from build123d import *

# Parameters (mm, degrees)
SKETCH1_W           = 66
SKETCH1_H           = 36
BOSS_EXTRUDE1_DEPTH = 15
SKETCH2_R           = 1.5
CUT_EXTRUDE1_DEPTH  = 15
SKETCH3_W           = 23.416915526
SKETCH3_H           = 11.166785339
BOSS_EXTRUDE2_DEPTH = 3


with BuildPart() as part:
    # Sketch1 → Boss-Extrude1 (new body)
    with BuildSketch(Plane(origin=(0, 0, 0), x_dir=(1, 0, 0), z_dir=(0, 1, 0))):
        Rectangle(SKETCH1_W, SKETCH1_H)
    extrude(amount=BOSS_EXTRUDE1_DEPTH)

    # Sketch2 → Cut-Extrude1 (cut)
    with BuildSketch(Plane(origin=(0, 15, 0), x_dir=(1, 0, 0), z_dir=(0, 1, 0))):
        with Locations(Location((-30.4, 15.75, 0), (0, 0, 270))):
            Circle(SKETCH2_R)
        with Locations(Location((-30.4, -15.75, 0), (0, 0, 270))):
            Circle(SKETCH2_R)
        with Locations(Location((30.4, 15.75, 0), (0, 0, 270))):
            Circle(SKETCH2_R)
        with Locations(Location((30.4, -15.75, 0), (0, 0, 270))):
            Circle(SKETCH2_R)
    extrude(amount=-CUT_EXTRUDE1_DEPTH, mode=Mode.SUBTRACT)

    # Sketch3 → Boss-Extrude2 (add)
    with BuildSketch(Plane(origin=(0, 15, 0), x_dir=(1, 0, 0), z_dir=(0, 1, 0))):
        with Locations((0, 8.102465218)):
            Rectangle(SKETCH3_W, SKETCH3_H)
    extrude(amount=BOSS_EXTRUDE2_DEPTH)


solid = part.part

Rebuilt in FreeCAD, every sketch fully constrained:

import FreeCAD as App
import Part
import Sketcher
from FreeCAD import Vector

doc = App.newDocument("Part")
params = doc.addObject("Spreadsheet::Sheet", "Params")
for row, (alias, value) in enumerate([
    ("sketch1_width", "66 mm"),
    ("sketch1_height", "36 mm"),
    ("pad1_length", "15 mm"),
    ("sketch2_diameter", "3 mm"),
    ("pocket1_length", "15 mm"),
    ("pad2_length", "3 mm"),
], start=1):
    params.set(f"A{row}", alias)
    params.set(f"B{row}", "=" + value)
    params.setAlias(f"B{row}", alias)

body = doc.addObject("PartDesign::Body", "Body")

# Sketch on XZ plane
sketch1 = doc.addObject("Sketcher::SketchObject", "Sketch")
body.addObject(sketch1)
sketch1.AttachmentSupport = (doc.XZ_Plane, [""])
sketch1.MapMode = "FlatFace"
sketch1.addGeometry([
    Part.LineSegment(Vector(-33, -18, 0), Vector(-33, 18, 0)),
    Part.LineSegment(Vector(-33, 18, 0), Vector(33, 18, 0)),
    Part.LineSegment(Vector(33, 18, 0), Vector(33, -18, 0)),
    Part.LineSegment(Vector(33, -18, 0), Vector(-33, -18, 0)),
], False)
sketch1.addConstraint([
    Sketcher.Constraint("Coincident", 0, 2, 1, 1),
    Sketcher.Constraint("Coincident", 1, 2, 2, 1),
    Sketcher.Constraint("Coincident", 2, 2, 3, 1),
    Sketcher.Constraint("Coincident", 3, 2, 0, 1),
    Sketcher.Constraint("Vertical", 0),
    Sketcher.Constraint("Horizontal", 1),
    Sketcher.Constraint("Vertical", 2),
    Sketcher.Constraint("Horizontal", 3),
    Sketcher.Constraint("Symmetric", 0, 2, 2, 2, -1, 1),
    Sketcher.Constraint("DistanceX", 1, 1, 1, 2, 66.0),
    Sketcher.Constraint("DistanceY", 0, 1, 0, 2, 36.0),
])
sketch1.setExpression("Constraints[9]", "Params.sketch1_width")
sketch1.setExpression("Constraints[10]", "Params.sketch1_height")
pad1 = doc.addObject("PartDesign::Pad", "Pad")
body.addObject(pad1)
pad1.Profile = sketch1
pad1.setExpression("Length", "Params.pad1_length")
pad1.Reversed = True

# Sketch on XZ plane
sketch2 = doc.addObject("Sketcher::SketchObject", "Sketch001")
body.addObject(sketch2)
sketch2.AttachmentSupport = (doc.XZ_Plane, [""])
sketch2.MapMode = "FlatFace"
sketch2.AttachmentOffset = App.Placement(Vector(0, 0, -15), App.Rotation())
sketch2.addGeometry([
    Part.Circle(Vector(-30.4, -15.8, 0), Vector(0, 0, 1), 1.5),
    Part.Circle(Vector(-30.4, 15.8, 0), Vector(0, 0, 1), 1.5),
    Part.Circle(Vector(30.4, -15.8, 0), Vector(0, 0, 1), 1.5),
    Part.Circle(Vector(30.4, 15.8, 0), Vector(0, 0, 1), 1.5),
], False)
sketch2.addConstraint([
    Sketcher.Constraint("Equal", 0, 1),
    Sketcher.Constraint("Equal", 1, 2),
    Sketcher.Constraint("Equal", 2, 3),
    Sketcher.Constraint("Symmetric", 1, 3, 2, 3, -1, 1),
    Sketcher.Constraint("Symmetric", 0, 3, 3, 3, -1, 1),
    Sketcher.Constraint("Symmetric", 0, 3, 2, 3, -2),
    Sketcher.Constraint("Diameter", 0, 3.0),
    Sketcher.Constraint("DistanceX", 0, 3, -1, 1, 30.4),
    Sketcher.Constraint("DistanceY", 0, 3, 1, 3, 31.5),
])
sketch2.setExpression("Constraints[6]", "Params.sketch2_diameter")
pocket1 = doc.addObject("PartDesign::Pocket", "Pocket")
body.addObject(pocket1)
pocket1.Profile = sketch2
pocket1.setExpression("Length", "Params.pocket1_length")
pocket1.Reversed = True

# Sketch on XZ plane
sketch3 = doc.addObject("Sketcher::SketchObject", "Sketch002")
body.addObject(sketch3)
sketch3.AttachmentSupport = (doc.XZ_Plane, [""])
sketch3.MapMode = "FlatFace"
sketch3.AttachmentOffset = App.Placement(Vector(0, 0, -15), App.Rotation())
sketch3.addGeometry([
    Part.LineSegment(Vector(-12, -14, 0), Vector(-12, -3, 0)),
    Part.LineSegment(Vector(-12, -3, 0), Vector(12, -3, 0)),
    Part.LineSegment(Vector(12, -3, 0), Vector(12, -14, 0)),
    Part.LineSegment(Vector(12, -14, 0), Vector(-12, -14, 0)),
], False)
sketch3.addConstraint([
    Sketcher.Constraint("Coincident", 0, 2, 1, 1),
    Sketcher.Constraint("Coincident", 1, 2, 2, 1),
    Sketcher.Constraint("Coincident", 2, 2, 3, 1),
    Sketcher.Constraint("Coincident", 3, 2, 0, 1),
    Sketcher.Constraint("Vertical", 0),
    Sketcher.Constraint("Horizontal", 1),
    Sketcher.Constraint("Vertical", 2),
    Sketcher.Constraint("Horizontal", 3),
    Sketcher.Constraint("DistanceX", 1, 1, 1, 2, 23.416916),
    Sketcher.Constraint("DistanceY", 0, 1, 0, 2, 11.166785),
    Sketcher.Constraint("DistanceX", 0, 2, -1, 1, 11.708458),
    Sketcher.Constraint("DistanceY", 0, 2, -1, 1, 2.519073),
])
pad2 = doc.addObject("PartDesign::Pad", "Pad001")
body.addObject(pad2)
pad2.Profile = sketch3
pad2.setExpression("Length", "Params.pad2_length")
pad2.Reversed = True

doc.recompute()
